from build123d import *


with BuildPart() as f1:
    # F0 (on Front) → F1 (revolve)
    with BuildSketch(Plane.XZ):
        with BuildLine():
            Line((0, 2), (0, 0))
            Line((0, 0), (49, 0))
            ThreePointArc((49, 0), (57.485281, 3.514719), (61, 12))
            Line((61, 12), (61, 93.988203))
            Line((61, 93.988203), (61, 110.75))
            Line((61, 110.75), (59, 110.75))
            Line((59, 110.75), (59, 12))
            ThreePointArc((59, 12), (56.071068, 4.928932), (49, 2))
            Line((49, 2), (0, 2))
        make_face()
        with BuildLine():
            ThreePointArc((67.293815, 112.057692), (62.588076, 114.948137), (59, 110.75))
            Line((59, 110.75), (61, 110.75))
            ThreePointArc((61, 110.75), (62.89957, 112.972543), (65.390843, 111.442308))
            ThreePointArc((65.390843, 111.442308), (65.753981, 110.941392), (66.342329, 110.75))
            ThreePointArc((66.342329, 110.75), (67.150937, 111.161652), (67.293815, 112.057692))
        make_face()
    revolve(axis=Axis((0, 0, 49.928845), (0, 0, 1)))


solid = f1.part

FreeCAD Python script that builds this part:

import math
import FreeCAD as App
import Part
import Sketcher
from FreeCAD import Vector

doc = App.newDocument("Part")
body = doc.addObject("PartDesign::Body", "Body")

sketch1 = body.newObject("Sketcher::SketchObject", "Sketch")
sketch1.AttachmentSupport = (doc.getObject("XZ_Plane"), [""])
sketch1.MapMode = "FlatFace"
sketch1.addGeometry(Part.LineSegment(Vector(0, 2, 0), Vector(0, 0, 0)), False)
sketch1.addGeometry(Part.LineSegment(Vector(0, 0, 0), Vector(49, 0, 0)), False)
sketch1.addGeometry(Part.ArcOfCircle(Part.Circle(Vector(49, 12, 0), Vector(0, 0, 1), 12), math.radians(-90), math.radians(0)), False)
sketch1.addGeometry(Part.LineSegment(Vector(61, 12, 0), Vector(61, 110.8, 0)), False)
sketch1.addGeometry(Part.ArcOfCircle(Part.Circle(Vector(63.2, 110.7, 0), Vector(0, 0, 1), 2.2), math.radians(18), math.radians(180)), False)
sketch1.addGeometry(Part.ArcOfCircle(Part.Circle(Vector(66.3, 111.7, 0), Vector(0, 0, 1), 1), math.radians(-162), math.radians(-90)), False)
sketch1.addGeometry(Part.ArcOfCircle(Part.Circle(Vector(66.3, 111.7, 0), Vector(0, 0, 1), 1), math.radians(-90), math.radians(18)), False)
sketch1.addGeometry(Part.ArcOfCircle(Part.Circle(Vector(63.2, 110.7, 0), Vector(0, 0, 1), 4.2), math.radians(18), math.radians(180)), False)
sketch1.addGeometry(Part.LineSegment(Vector(59, 110.8, 0), Vector(59, 12, 0)), False)
sketch1.addGeometry(Part.ArcOfCircle(Part.Circle(Vector(49, 12, 0), Vector(0, 0, 1), 10), math.radians(-90), math.radians(0)), False)
sketch1.addGeometry(Part.LineSegment(Vector(49, 2, 0), Vector(0, 2, 0)), False)
sketch1.addConstraint(Sketcher.Constraint("Coincident", 0, 2, 1, 1))
sketch1.addConstraint(Sketcher.Constraint("Tangent", 1, 2, 2, 1))
sketch1.addConstraint(Sketcher.Constraint("Tangent", 2, 2, 3, 1))
sketch1.addConstraint(Sketcher.Constraint("Tangent", 3, 2, 4, 2))
sketch1.addConstraint(Sketcher.Constraint("Tangent", 4, 1, 5, 1))
sketch1.addConstraint(Sketcher.Constraint("Tangent", 5, 2, 6, 1))
sketch1.addConstraint(Sketcher.Constraint("Tangent", 6, 2, 7, 1))
sketch1.addConstraint(Sketcher.Constraint("Tangent", 7, 2, 8, 1))
sketch1.addConstraint(Sketcher.Constraint("Tangent", 8, 2, 9, 2))
sketch1.addConstraint(Sketcher.Constraint("Tangent", 9, 1, 10, 1))
sketch1.addConstraint(Sketcher.Constraint("Coincident", 10, 2, 0, 1))
sketch1.addConstraint(Sketcher.Constraint("Vertical", 0))
sketch1.addConstraint(Sketcher.Constraint("Horizontal", 1))
sketch1.addConstraint(Sketcher.Constraint("Vertical", 3))
sketch1.addConstraint(Sketcher.Constraint("Vertical", 8))
sketch1.addConstraint(Sketcher.Constraint("Horizontal", 10))
sketch1.addConstraint(Sketcher.Constraint("Coincident", 0, 2, -1, 1))
sketch1.addConstraint(Sketcher.Constraint("Coincident", 7, 3, 4, 3))
sketch1.addConstraint(Sketcher.Constraint("Coincident", 9, 3, 2, 3))
sketch1.addConstraint(Sketcher.Constraint("Equal", 5, 6))
sketch1.addConstraint(Sketcher.Constraint("Horizontal", 3, 2, 5, 2))
sketch1.addConstraint(Sketcher.Constraint("Vertical", 6, 3, 5, 2))
sketch1.addConstraint(Sketcher.Constraint("Radius", 2, 12.000001))
sketch1.addConstraint(Sketcher.Constraint("Radius", 5, 0.999999))
sketch1.addConstraint(Sketcher.Constraint("DistanceX", 1, 1, 1, 2, 49.0))
sketch1.addConstraint(Sketcher.Constraint("Radius", 4, 2.25))
sketch1.addConstraint(Sketcher.Constraint("DistanceY", 3, 1, 3, 2, 98.75))
revolution = body.newObject("PartDesign::Revolution", "Revolution")
revolution.Profile = sketch1
revolution.ReferenceAxis = (sketch1, ["V_Axis"])
revolution.Angle = 360

doc.recompute()
